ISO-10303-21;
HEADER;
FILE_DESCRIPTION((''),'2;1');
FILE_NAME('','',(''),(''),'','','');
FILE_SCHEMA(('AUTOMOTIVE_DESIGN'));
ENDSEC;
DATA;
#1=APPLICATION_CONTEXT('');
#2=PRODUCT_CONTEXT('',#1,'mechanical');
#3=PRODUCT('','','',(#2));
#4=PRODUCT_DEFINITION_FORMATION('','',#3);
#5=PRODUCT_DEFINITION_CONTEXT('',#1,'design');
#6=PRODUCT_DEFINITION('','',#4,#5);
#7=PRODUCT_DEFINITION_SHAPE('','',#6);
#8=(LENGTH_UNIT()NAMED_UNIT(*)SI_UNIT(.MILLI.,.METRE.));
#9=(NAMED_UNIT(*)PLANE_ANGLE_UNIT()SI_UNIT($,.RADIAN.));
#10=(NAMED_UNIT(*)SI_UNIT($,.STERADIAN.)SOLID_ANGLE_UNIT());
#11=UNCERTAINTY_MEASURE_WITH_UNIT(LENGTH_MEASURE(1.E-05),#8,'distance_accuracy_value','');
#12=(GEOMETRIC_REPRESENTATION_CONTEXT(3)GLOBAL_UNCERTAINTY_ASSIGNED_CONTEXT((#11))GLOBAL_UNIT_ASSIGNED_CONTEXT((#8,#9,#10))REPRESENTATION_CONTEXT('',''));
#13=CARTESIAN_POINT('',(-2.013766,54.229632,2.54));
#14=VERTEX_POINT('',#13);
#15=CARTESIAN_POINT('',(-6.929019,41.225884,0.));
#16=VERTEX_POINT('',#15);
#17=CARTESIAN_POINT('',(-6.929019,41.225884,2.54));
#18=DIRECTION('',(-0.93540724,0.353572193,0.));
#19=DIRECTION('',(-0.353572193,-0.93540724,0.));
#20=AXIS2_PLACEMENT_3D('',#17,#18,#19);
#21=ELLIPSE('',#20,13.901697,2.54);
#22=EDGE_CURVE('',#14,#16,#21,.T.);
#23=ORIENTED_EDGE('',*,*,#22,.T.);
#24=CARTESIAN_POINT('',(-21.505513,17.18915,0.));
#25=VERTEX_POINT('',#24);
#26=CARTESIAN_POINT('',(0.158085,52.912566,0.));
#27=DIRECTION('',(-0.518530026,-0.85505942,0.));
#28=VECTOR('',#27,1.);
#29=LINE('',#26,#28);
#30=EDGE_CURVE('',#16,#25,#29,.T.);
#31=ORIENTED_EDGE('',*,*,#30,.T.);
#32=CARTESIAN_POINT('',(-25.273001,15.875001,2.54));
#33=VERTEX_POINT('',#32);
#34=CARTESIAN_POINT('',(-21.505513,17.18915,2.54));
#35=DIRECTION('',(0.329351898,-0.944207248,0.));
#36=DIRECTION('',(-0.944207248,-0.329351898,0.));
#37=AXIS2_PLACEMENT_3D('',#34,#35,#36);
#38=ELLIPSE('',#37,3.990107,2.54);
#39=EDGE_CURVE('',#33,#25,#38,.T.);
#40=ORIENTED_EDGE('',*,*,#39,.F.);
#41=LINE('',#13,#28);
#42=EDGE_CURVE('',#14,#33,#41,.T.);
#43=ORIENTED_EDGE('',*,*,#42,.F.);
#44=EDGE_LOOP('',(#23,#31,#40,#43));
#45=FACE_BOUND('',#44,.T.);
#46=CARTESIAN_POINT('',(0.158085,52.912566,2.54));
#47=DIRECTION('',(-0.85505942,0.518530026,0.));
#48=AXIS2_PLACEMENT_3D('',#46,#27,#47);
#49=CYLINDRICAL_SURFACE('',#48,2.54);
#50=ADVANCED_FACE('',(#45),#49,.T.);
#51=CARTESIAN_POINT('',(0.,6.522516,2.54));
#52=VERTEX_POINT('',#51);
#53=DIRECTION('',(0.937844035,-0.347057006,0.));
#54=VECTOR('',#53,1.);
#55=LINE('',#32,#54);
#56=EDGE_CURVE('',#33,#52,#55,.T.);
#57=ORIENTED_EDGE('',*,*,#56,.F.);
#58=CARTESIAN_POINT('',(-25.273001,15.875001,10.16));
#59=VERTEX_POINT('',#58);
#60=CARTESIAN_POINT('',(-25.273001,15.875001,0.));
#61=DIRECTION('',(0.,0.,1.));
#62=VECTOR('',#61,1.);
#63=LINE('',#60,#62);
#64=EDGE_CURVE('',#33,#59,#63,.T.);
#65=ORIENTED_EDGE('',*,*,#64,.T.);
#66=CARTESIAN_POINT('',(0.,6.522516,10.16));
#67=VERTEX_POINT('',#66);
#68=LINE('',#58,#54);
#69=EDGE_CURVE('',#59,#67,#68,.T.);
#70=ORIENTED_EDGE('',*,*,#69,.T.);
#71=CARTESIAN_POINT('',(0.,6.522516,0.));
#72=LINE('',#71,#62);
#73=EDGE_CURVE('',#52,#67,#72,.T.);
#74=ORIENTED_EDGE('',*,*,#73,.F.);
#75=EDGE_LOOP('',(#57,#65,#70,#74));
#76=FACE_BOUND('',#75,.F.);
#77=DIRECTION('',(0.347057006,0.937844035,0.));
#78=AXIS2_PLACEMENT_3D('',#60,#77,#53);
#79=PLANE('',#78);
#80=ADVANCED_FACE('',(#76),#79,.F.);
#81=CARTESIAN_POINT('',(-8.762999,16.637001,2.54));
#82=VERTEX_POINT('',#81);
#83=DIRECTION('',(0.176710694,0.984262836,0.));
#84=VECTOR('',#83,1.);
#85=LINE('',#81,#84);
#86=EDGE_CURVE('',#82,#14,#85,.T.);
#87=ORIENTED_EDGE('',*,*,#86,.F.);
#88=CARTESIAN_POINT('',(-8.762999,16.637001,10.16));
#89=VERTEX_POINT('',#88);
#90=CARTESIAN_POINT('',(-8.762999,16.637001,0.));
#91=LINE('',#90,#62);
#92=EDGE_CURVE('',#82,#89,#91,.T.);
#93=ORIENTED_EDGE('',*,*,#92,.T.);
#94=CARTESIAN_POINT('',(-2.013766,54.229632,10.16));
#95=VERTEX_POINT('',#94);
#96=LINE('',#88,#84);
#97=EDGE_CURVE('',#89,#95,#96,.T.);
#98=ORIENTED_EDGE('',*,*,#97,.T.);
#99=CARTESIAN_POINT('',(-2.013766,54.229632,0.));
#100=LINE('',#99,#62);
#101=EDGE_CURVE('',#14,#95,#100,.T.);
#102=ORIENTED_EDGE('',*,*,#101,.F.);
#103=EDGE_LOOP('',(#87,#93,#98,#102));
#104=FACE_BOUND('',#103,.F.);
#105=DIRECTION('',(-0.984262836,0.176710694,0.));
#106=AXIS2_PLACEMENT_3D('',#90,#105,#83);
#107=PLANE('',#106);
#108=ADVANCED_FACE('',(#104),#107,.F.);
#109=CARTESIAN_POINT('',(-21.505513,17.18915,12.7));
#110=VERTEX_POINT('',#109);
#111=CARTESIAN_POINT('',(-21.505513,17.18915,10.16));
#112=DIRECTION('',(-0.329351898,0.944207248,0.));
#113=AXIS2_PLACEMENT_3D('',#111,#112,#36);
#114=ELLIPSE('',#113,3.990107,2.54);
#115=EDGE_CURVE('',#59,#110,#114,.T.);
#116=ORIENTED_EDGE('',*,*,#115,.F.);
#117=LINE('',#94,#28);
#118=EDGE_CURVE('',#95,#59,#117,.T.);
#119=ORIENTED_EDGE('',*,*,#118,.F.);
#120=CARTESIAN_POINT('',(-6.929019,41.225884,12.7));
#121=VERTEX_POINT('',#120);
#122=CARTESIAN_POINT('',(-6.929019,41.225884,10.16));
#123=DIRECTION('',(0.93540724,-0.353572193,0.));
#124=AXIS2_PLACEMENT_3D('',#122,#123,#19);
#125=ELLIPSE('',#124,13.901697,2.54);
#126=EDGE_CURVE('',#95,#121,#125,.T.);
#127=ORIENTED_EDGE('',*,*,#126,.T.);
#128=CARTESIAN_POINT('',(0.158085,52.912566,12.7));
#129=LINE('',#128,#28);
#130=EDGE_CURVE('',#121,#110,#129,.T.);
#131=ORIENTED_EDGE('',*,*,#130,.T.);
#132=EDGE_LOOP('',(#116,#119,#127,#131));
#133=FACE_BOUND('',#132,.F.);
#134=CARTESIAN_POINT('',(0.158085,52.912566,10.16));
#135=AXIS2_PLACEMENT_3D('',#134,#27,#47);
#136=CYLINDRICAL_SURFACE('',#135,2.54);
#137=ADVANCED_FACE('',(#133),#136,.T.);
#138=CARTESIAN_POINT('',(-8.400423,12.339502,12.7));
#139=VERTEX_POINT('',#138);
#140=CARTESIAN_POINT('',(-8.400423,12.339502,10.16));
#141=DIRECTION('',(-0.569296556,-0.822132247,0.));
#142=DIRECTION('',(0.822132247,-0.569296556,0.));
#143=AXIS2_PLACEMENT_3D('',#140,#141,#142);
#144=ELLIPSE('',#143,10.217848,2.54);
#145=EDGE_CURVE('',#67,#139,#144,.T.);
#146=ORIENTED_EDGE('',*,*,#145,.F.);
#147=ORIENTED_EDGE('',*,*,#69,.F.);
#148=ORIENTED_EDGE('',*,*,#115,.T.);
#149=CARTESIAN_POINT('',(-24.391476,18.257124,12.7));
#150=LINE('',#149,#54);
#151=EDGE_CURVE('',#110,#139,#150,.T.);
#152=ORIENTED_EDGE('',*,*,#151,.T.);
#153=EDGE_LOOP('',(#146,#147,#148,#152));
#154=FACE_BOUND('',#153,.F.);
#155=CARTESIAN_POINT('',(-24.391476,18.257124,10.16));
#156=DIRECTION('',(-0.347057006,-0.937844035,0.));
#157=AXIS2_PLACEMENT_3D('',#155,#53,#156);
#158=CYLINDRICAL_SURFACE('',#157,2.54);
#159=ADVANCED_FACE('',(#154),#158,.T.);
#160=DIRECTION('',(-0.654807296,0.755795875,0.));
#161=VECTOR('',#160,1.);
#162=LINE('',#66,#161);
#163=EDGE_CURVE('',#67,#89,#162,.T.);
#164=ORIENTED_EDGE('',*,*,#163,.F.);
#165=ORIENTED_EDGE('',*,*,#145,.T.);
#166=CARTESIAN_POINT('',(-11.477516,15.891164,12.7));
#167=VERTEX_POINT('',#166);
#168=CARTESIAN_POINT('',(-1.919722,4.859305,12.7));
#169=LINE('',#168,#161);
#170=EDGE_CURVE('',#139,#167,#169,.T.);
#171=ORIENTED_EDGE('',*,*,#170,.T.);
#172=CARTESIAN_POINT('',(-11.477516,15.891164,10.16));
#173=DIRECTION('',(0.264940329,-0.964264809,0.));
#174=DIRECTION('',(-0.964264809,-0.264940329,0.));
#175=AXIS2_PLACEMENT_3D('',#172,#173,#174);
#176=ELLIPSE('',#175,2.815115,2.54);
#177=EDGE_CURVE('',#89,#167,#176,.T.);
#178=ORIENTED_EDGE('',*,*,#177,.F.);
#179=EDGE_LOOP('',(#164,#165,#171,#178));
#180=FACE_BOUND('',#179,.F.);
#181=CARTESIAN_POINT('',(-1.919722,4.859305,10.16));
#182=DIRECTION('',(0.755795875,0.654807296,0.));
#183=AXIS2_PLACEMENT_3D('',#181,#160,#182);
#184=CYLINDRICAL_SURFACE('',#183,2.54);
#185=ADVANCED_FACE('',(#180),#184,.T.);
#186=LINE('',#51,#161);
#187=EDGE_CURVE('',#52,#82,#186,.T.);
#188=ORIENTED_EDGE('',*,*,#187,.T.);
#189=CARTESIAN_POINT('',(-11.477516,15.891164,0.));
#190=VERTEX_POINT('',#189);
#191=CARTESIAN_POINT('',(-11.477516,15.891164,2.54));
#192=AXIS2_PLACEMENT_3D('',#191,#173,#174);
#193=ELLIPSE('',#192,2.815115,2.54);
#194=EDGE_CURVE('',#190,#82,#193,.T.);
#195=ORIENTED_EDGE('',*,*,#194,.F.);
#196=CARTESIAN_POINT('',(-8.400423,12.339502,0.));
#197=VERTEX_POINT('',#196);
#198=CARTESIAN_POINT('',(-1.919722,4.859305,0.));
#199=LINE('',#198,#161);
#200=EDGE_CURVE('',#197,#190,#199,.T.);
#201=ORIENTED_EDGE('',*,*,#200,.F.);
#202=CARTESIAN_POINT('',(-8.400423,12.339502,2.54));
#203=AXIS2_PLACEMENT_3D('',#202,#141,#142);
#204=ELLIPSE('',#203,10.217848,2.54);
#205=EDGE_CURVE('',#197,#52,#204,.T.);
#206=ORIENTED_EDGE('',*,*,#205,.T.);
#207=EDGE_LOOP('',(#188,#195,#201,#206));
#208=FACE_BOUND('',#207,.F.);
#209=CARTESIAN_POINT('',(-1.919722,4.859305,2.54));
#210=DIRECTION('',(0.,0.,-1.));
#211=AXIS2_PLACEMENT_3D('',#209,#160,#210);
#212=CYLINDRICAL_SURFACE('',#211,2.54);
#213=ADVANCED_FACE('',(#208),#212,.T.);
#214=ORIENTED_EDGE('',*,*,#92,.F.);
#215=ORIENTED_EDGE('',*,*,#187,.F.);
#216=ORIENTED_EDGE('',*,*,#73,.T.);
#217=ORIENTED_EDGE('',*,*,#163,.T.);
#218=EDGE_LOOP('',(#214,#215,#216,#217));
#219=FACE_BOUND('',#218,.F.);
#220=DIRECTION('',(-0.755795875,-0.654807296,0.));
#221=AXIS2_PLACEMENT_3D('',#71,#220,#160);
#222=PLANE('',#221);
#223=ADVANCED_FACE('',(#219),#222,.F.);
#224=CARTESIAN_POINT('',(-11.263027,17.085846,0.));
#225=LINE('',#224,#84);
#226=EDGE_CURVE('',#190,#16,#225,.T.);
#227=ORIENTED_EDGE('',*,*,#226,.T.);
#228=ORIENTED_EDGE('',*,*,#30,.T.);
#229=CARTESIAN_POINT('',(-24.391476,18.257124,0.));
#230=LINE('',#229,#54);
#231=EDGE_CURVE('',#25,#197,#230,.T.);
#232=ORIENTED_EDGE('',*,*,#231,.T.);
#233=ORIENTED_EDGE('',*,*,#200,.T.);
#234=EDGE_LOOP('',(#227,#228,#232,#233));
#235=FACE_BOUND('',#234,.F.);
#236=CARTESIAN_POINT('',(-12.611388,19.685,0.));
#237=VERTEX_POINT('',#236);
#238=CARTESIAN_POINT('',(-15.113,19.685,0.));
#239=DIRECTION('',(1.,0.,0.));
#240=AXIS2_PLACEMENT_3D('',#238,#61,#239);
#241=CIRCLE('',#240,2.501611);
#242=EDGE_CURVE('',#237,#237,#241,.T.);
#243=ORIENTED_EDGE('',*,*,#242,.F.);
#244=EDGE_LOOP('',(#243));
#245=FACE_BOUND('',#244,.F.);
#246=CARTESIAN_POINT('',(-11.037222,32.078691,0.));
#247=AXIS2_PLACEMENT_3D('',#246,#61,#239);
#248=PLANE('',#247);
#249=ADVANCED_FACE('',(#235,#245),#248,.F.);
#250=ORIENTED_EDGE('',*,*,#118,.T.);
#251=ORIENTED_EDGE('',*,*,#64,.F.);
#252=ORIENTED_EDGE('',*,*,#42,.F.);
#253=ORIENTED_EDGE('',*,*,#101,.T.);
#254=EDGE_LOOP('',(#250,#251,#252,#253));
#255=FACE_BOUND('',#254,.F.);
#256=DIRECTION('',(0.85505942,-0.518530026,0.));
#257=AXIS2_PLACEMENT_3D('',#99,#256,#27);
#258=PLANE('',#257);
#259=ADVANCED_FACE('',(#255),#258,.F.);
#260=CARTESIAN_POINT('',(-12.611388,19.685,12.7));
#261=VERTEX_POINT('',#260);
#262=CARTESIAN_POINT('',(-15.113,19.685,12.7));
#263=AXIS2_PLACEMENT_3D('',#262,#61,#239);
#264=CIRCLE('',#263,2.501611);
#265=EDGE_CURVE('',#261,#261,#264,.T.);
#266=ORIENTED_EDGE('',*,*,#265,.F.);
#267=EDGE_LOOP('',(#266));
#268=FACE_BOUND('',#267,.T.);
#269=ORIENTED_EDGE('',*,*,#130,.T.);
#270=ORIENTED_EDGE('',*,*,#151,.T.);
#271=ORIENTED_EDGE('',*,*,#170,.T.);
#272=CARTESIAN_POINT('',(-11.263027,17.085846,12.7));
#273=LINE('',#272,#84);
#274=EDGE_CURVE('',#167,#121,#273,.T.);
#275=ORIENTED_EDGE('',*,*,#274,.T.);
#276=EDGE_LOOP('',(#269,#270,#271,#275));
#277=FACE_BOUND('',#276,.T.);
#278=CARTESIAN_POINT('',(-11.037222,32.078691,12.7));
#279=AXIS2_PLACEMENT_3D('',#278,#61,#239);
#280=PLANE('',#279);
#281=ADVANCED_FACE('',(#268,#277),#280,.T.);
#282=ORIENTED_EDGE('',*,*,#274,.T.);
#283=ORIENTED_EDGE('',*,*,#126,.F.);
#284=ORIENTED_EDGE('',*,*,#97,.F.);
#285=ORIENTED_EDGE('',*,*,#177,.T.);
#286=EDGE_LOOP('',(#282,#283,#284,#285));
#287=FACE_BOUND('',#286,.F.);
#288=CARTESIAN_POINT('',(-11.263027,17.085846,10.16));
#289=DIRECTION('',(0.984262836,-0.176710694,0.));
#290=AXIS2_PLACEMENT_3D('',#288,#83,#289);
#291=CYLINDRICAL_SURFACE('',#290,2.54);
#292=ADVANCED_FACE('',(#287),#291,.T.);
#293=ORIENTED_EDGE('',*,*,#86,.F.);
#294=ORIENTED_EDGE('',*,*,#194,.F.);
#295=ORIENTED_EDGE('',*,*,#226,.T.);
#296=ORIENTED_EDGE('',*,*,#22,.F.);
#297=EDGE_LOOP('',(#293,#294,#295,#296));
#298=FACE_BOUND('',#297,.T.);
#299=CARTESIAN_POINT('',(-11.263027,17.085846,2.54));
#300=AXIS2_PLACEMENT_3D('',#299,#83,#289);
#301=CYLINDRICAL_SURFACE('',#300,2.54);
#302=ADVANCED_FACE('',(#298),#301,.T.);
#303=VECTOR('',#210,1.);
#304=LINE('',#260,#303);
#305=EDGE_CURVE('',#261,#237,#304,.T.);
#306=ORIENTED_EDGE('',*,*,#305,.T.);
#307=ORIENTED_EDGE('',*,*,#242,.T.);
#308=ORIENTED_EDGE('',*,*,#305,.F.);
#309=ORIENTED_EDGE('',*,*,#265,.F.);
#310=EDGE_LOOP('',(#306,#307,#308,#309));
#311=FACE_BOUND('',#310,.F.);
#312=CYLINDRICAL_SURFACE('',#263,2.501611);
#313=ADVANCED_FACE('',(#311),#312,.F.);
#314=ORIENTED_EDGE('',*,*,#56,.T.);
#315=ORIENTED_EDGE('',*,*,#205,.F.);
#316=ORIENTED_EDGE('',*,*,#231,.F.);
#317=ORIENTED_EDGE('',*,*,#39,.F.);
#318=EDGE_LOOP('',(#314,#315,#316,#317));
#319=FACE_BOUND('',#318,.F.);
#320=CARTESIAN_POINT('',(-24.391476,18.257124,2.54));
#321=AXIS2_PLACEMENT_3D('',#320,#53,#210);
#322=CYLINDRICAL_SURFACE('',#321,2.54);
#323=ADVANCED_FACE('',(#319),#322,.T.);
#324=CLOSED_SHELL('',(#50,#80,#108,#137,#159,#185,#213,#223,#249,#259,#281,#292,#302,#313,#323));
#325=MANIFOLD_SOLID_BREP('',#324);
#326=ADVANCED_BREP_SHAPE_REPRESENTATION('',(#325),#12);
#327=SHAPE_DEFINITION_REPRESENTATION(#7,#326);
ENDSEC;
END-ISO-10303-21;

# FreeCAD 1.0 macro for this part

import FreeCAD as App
import Part
import Sketcher

V = App.Vector
Q = App.Units.Quantity


def edges_at(feature, points):
    """Names of the edges that pass closest to the given points."""
    edges = feature.Shape.Edges
    near = lambda p: min(range(len(edges)), key=lambda i: edges[i].distToShape(Part.Vertex(*p))[0])
    return sorted({f"Edge{near(p) + 1}" for p in points})


def add_polygon(sketch, points):
    """Adds a closed chain of lines whose ends are joined by coincident constraints."""
    first, n = sketch.GeometryCount, len(points)
    for a, b in zip(points, points[1:] + points[:1]):
        sketch.addGeometry(Part.LineSegment(App.Vector(*a, 0), App.Vector(*b, 0)), False)
    for i in range(n):
        sketch.addConstraint(Sketcher.Constraint("Coincident", first + i, 2, first + (i + 1) % n, 1))

doc = App.newDocument("Part")
body = doc.addObject("PartDesign::Body", "Body")

# Sketch on XY plane
sketch1 = body.newObject("Sketcher::SketchObject", "Sketch")
sketch1.AttachmentSupport = (doc.getObject("XY_Plane"), [""])
sketch1.MapMode = "FlatFace"
add_polygon(sketch1, [(-2, 54), (-25, 16), (0, 7), (-9, 17)])  # lines 0-3
sketch1.addConstraint([
    Sketcher.Constraint("PointOnObject", 1, 2, -2),
    Sketcher.Constraint("DistanceX", 0, 2, 2, 2, Q("0.6500001 in")),
    Sketcher.Constraint("DistanceY", 0, 2, 2, 2, Q("0.03 in")),
    Sketcher.Constraint("DistanceX", 0, 2, -1, 1, Q("0.995 in")),
    Sketcher.Constraint("DistanceY", -1, 1, 0, 2, Q("0.625 in")),
    Sketcher.Constraint("Distance", 0, 44.856101),
    Sketcher.Constraint("Distance", 1, 26.947978),
    Sketcher.Constraint("Distance", 3, 38.193691),
])
pad1 = body.newObject("PartDesign::Pad", "Pad")
pad1.Profile = sketch1
pad1.Length = Q("0.5 in")
doc.recompute()

fillet = body.newObject("PartDesign::Fillet", "Fillet")
fillet.Base = (pad1, edges_at(pad1, [
    (-13.643, 35.052, 12.7),
    (-12.637, 11.199, 12.7),
    (-4.381, 11.58, 12.7),
    (-5.388, 35.433, 12.7),
]))
fillet.Radius = Q("0.1 in")
doc.recompute()

fillet2 = body.newObject("PartDesign::Fillet", "Fillet001")
fillet2.Base = (fillet, edges_at(fillet, [
    (-13.643, 35.052, 0),
    (-12.637, 11.199, 0),
    (-4.381, 11.58, 0),
    (-5.388, 35.433, 0),
]))
fillet2.Radius = Q("0.1 in")

# Sketch on XY plane
sketch2 = body.newObject("Sketcher::SketchObject", "Sketch001")
sketch2.AttachmentSupport = (doc.getObject("XY_Plane"), [""])
sketch2.MapMode = "FlatFace"
sketch2.AttachmentOffset = App.Placement(V(0, 0, 0.5 * 25.4), App.Rotation())
sketch2.addGeometry(Part.Circle(V(-15.1, 19.7, 0), V(0, 0, 1), 2.5), False)
sketch2.addConstraint([
    Sketcher.Constraint("DistanceX", 0, 3, -1, 1, Q("0.595 in")),
    Sketcher.Constraint("DistanceY", -1, 1, 0, 3, Q("0.775 in")),
    Sketcher.Constraint("Diameter", 0, 5.003223),
])
pocket1 = body.newObject("PartDesign::Pocket", "Pocket")
pocket1.Profile = sketch2
pocket1.Length = Q("0.51 in")

doc.recompute()
